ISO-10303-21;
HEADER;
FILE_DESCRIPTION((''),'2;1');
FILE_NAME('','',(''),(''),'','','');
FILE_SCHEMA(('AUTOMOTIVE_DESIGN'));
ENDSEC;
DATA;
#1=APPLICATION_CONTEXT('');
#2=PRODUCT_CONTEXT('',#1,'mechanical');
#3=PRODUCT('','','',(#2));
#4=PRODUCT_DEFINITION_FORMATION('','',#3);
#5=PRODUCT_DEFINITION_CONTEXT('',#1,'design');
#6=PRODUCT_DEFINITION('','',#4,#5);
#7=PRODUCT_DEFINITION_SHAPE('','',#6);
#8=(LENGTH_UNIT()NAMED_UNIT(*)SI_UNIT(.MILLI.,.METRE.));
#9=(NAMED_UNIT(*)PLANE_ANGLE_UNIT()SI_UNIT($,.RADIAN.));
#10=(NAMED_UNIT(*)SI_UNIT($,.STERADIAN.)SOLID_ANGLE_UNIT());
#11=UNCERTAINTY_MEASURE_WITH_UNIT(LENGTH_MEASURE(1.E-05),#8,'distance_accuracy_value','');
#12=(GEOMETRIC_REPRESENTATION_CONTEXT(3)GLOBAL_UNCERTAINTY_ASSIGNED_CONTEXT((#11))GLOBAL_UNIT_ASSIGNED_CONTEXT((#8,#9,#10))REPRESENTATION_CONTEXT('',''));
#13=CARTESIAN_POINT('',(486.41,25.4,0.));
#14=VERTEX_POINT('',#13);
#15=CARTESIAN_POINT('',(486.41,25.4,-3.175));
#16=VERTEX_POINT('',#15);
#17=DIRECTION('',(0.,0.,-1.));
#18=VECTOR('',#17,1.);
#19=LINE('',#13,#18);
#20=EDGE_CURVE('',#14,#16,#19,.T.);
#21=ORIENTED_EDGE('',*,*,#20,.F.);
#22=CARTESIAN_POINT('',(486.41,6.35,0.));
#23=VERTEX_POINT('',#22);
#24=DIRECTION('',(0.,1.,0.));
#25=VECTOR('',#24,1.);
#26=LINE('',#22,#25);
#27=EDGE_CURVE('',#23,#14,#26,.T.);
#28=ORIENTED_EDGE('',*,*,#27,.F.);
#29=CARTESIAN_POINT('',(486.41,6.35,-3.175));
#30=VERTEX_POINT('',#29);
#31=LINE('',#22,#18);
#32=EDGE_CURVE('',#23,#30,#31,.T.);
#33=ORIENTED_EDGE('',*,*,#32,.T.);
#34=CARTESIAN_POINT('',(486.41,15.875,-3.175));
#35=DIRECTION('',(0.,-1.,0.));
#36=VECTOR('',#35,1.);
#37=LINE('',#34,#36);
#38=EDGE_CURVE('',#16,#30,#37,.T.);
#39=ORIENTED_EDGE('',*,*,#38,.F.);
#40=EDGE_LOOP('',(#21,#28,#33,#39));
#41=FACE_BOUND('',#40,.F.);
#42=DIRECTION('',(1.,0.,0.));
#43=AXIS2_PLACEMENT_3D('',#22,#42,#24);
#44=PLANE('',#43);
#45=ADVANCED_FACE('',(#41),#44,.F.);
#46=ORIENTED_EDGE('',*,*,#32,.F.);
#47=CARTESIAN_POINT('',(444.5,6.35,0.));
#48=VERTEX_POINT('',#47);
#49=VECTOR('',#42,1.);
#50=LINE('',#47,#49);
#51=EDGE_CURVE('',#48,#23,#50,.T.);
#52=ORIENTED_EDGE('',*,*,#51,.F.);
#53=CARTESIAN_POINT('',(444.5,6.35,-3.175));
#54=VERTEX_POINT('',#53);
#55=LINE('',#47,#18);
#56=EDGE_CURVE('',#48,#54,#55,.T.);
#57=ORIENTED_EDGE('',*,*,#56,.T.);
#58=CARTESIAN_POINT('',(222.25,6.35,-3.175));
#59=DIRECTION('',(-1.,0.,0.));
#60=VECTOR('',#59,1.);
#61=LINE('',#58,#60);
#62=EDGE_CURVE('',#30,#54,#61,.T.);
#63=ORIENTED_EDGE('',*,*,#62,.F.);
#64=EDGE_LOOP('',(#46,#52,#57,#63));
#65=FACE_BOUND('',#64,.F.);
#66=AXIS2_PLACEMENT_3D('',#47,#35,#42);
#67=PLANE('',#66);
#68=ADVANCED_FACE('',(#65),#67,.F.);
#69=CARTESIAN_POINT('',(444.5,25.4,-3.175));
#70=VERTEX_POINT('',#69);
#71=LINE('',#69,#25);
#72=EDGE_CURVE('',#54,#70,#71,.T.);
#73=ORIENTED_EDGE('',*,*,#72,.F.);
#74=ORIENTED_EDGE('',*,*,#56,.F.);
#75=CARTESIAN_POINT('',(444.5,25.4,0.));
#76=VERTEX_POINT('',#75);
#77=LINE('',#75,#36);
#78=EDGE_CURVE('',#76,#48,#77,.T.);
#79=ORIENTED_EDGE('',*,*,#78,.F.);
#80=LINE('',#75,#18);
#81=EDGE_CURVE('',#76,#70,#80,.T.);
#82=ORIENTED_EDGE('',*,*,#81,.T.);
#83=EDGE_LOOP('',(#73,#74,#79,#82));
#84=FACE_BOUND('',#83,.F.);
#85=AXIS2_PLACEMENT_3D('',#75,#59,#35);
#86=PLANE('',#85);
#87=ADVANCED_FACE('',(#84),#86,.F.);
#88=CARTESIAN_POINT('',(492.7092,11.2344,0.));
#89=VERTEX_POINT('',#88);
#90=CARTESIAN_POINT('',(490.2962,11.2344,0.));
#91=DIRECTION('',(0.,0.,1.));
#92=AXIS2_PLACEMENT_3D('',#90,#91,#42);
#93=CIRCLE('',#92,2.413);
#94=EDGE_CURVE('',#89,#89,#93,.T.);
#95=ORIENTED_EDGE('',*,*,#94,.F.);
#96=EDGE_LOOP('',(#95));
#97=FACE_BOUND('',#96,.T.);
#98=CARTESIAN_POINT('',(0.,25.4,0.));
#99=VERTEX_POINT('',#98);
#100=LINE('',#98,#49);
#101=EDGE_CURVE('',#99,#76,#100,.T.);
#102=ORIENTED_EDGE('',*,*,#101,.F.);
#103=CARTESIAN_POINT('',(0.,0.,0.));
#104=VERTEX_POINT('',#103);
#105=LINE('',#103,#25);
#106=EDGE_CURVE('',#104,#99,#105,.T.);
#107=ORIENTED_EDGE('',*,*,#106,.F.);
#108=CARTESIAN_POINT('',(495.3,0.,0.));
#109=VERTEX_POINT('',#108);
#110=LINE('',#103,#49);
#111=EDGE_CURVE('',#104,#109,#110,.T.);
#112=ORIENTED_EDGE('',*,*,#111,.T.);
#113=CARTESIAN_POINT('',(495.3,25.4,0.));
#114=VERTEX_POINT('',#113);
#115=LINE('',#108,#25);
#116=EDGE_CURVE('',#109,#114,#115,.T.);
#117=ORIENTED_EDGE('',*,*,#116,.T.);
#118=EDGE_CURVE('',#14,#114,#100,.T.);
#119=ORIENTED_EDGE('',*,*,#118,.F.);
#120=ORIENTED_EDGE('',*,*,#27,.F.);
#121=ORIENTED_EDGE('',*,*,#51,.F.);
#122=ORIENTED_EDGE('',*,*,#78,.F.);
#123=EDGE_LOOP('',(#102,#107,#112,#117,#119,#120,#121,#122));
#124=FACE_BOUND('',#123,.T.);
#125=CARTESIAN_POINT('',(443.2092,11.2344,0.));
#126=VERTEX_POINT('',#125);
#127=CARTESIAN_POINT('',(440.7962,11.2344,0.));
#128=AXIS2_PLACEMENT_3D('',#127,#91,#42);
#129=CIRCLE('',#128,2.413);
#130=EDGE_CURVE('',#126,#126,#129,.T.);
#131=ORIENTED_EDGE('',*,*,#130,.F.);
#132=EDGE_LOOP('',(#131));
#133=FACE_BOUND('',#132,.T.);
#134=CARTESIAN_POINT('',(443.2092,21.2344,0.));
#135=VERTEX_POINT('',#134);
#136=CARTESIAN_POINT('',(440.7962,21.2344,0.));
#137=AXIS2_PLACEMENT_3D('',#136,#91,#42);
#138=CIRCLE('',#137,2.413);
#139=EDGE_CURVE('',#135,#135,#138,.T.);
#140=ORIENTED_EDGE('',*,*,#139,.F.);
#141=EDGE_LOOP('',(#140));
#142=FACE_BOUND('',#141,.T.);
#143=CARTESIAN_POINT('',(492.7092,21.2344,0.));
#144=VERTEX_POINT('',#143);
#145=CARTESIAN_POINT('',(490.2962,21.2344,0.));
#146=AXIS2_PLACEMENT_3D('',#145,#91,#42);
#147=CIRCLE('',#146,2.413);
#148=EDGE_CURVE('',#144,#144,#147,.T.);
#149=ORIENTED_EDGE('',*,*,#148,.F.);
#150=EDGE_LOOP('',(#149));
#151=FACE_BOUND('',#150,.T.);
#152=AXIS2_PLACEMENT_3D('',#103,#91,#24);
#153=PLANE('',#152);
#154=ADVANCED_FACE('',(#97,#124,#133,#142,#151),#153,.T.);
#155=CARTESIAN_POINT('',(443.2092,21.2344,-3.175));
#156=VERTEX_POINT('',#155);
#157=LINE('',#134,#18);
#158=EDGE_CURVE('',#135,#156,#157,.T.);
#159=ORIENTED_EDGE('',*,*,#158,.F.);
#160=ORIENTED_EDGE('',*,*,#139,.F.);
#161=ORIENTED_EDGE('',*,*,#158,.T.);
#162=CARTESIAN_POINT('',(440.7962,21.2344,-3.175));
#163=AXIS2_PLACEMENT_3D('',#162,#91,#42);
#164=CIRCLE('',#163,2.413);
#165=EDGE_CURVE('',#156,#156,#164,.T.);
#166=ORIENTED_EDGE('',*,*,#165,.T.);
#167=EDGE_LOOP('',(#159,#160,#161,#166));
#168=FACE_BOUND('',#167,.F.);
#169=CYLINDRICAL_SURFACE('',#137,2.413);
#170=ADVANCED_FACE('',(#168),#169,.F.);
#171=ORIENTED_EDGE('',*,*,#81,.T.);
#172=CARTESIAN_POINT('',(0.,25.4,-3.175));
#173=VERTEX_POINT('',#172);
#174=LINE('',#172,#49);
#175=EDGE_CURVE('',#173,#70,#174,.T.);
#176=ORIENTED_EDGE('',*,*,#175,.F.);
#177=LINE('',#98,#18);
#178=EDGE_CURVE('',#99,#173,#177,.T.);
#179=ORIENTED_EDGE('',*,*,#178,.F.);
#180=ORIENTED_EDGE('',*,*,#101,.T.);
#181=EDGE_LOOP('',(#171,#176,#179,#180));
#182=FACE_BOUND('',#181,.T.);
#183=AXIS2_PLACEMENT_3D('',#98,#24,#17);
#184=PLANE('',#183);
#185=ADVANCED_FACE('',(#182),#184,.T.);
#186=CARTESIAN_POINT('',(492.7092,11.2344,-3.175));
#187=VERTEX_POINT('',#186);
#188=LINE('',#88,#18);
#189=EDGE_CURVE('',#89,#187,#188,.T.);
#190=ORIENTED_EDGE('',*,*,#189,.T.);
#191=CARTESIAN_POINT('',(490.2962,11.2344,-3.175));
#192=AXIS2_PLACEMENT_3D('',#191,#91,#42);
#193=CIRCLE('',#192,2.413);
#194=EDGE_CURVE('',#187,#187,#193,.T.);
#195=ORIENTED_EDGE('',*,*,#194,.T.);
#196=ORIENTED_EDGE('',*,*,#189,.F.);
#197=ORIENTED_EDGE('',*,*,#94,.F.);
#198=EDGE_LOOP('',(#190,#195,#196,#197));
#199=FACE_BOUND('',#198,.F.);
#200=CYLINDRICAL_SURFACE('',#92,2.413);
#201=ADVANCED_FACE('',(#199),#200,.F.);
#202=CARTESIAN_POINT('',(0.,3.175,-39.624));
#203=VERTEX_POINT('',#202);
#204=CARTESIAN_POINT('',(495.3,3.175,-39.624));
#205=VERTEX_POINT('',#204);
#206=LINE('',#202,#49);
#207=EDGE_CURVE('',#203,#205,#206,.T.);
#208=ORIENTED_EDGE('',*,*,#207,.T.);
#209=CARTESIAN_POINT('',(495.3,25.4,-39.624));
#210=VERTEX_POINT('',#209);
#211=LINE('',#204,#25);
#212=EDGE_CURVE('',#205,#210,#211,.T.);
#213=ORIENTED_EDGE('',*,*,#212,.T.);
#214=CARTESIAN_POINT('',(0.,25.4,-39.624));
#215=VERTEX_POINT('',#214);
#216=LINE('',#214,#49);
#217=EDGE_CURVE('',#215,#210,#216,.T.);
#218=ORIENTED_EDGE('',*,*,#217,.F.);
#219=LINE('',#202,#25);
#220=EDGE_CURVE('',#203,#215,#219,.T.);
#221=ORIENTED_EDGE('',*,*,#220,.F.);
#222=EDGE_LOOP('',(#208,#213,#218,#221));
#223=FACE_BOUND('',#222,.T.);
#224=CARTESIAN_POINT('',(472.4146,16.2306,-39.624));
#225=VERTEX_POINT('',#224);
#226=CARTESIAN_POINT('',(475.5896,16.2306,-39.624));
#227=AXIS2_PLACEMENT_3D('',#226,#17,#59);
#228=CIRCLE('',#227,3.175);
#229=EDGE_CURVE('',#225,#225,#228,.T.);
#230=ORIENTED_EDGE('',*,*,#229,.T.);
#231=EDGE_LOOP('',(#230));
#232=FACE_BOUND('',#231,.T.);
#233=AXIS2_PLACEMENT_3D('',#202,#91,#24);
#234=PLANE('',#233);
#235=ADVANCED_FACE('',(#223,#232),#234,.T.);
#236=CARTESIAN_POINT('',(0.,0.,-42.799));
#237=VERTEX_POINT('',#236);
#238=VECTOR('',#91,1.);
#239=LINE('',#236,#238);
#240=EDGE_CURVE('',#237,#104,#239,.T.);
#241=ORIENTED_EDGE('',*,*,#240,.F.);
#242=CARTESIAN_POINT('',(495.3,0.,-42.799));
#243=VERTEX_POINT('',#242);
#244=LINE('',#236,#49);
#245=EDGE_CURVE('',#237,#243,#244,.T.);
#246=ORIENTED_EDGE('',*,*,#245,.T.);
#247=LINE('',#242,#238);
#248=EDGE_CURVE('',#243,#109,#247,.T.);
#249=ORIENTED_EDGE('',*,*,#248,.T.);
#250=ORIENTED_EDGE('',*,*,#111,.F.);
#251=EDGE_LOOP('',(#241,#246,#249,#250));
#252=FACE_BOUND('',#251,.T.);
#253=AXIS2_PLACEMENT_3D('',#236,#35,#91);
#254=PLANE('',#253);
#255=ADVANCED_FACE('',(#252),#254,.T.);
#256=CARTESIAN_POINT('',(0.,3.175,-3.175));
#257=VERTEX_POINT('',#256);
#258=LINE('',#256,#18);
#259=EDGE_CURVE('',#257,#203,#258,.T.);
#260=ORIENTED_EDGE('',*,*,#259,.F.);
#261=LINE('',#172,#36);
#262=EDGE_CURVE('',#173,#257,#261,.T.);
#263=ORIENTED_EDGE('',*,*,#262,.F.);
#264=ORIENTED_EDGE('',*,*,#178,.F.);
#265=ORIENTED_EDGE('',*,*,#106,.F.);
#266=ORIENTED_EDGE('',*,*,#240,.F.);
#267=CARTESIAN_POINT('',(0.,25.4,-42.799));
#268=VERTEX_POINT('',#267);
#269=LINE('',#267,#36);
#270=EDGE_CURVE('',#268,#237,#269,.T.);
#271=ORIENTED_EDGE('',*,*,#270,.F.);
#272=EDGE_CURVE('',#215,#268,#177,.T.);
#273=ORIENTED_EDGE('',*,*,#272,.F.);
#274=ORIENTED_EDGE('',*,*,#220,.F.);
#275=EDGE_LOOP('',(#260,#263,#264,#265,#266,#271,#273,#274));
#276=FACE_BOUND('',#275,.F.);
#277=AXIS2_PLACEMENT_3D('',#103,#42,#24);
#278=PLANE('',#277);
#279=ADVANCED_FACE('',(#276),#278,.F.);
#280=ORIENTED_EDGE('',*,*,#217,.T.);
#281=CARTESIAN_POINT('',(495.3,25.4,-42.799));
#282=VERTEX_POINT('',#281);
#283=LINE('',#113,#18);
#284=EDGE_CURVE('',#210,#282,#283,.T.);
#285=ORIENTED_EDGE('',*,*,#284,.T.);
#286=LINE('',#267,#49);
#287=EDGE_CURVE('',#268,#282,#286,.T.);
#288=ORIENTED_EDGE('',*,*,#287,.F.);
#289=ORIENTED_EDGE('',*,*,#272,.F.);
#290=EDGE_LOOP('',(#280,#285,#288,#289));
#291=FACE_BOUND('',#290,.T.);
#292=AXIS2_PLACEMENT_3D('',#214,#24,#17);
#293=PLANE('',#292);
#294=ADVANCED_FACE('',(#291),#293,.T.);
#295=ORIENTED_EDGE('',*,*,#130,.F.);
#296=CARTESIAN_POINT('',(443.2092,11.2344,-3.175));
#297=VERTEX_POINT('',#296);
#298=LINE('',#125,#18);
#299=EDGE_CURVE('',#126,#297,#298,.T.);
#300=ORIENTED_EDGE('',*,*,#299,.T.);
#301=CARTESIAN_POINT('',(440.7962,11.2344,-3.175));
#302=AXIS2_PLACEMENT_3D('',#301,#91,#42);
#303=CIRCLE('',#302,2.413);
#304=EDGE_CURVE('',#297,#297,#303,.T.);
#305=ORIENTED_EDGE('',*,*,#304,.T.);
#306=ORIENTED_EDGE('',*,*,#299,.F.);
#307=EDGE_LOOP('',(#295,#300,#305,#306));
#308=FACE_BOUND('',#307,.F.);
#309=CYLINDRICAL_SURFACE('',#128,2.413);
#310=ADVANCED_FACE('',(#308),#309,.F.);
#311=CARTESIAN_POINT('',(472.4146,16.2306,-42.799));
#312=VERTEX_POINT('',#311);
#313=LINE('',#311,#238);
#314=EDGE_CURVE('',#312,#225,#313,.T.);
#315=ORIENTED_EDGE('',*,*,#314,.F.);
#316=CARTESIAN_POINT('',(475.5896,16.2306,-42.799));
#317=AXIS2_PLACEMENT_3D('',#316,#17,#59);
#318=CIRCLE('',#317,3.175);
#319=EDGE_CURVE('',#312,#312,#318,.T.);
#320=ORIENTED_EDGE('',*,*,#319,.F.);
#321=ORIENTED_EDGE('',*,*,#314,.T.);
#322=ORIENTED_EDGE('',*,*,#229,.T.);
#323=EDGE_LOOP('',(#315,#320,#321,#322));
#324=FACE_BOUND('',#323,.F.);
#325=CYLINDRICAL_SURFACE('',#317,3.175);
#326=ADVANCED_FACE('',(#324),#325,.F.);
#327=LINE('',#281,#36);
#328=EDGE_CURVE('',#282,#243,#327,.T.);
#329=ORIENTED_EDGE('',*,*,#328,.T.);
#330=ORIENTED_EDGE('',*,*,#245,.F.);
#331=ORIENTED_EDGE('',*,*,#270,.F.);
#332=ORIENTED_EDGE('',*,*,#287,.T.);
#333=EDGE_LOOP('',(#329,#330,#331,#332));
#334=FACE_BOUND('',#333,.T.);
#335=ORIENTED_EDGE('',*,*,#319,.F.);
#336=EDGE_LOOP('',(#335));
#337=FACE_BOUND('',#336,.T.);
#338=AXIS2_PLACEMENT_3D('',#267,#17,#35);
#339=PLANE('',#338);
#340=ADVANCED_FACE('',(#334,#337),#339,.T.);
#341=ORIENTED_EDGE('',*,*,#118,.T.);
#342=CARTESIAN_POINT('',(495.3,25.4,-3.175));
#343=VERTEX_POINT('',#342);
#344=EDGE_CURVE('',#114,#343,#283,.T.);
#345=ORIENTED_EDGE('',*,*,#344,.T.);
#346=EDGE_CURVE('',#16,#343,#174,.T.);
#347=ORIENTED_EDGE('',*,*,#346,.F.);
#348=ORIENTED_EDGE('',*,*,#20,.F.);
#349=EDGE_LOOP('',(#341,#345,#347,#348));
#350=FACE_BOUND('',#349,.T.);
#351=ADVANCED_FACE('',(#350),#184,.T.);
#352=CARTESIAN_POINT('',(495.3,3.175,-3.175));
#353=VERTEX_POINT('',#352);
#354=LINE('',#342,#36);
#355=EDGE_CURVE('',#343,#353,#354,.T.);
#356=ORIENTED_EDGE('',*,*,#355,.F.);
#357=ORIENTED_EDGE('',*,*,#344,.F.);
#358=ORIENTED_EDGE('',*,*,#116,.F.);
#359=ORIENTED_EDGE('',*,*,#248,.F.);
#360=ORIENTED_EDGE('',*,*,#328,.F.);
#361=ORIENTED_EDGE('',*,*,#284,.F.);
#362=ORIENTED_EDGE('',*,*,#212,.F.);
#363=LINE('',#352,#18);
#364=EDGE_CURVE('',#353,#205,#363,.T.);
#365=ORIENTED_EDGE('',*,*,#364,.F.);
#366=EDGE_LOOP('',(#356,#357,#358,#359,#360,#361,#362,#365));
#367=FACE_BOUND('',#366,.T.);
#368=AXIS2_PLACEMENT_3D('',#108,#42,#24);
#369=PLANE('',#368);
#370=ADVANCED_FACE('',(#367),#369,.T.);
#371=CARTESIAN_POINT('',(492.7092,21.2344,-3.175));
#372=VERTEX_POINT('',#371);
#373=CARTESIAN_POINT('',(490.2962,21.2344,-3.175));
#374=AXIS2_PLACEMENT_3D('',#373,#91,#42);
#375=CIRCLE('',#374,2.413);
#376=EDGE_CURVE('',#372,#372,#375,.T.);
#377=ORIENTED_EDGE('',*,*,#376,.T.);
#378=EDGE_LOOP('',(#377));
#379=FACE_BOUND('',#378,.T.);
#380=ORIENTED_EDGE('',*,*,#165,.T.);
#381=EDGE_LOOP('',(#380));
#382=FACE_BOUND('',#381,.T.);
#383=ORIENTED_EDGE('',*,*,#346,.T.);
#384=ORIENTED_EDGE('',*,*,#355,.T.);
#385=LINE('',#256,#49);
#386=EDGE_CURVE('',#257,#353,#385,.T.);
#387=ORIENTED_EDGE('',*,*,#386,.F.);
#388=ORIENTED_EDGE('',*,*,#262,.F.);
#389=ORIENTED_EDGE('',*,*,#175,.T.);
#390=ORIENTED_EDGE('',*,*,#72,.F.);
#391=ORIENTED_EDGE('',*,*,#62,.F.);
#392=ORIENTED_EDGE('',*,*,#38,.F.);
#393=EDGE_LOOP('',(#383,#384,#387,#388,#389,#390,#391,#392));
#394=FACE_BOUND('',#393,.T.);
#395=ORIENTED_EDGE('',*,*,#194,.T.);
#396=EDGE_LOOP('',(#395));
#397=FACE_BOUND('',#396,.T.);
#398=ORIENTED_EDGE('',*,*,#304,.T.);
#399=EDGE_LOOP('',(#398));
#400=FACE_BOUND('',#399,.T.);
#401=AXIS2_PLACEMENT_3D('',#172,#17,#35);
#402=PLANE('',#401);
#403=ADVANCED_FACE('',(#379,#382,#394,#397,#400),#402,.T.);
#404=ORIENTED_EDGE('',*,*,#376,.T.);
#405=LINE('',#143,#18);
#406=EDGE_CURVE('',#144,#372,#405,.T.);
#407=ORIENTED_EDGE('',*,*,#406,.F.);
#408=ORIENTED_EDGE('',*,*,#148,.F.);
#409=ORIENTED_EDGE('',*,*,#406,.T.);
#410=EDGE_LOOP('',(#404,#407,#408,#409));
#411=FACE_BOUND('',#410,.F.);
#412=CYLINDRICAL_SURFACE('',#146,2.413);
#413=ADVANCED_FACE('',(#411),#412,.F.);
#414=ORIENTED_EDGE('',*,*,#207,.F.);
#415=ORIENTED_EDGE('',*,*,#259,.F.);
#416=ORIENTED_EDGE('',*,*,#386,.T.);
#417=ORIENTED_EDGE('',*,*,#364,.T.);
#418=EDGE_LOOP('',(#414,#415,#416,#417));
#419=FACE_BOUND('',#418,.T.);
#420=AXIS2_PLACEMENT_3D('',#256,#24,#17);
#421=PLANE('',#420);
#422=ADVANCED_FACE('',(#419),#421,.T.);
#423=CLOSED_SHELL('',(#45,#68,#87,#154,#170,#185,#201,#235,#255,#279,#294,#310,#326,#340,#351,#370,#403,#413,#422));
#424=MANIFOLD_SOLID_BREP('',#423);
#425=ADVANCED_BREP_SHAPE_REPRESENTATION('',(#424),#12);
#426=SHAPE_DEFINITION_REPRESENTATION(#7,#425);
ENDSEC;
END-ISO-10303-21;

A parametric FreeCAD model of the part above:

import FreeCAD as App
import Part
import Sketcher

V = App.Vector
Q = App.Units.Quantity


def add_polygon(sketch, points):
    """Adds a closed chain of lines whose ends are joined by coincident constraints."""
    first, n = sketch.GeometryCount, len(points)
    for a, b in zip(points, points[1:] + points[:1]):
        sketch.addGeometry(Part.LineSegment(App.Vector(*a, 0), App.Vector(*b, 0)), False)
    for i in range(n):
        sketch.addConstraint(Sketcher.Constraint("Coincident", first + i, 2, first + (i + 1) % n, 1))

doc = App.newDocument("Part")
params = doc.addObject("Spreadsheet::Sheet", "Params")
for row, (alias, value) in enumerate([
    ("sketch1_width", "1 in"),
    ("sketch1_width2", "0.875 in"),
    ("sketch1_height", "1.685 in"),
    ("sketch1_height2", "0.125 in"),
    ("pad1_length", "19.5 in"),
    ("sketch2_diameter", "0.19 in"),
    ("sketch2_height", "0.75 in"),
    ("sketch2_width", "1.65 in"),
    ("pocket1_length", "0.5 in"),
    ("sketch3_diameter", "0.25 in"),
    ("pocket2_length", "0.5 in"),
], start=1):
    params.set(f"A{row}", alias)
    params.set(f"B{row}", "=" + value)
    params.setAlias(f"B{row}", alias)

body = doc.addObject("PartDesign::Body", "Body")

sketch1 = doc.addObject("Sketcher::SketchObject", "Sketch")
body.addObject(sketch1)
sketch1.AttachmentSupport = (doc.YZ_Plane, [""])
sketch1.MapMode = "FlatFace"
add_polygon(sketch1, [(25.4, 0), (0, 0), (0, -42.8), (25.4, -42.8), (25.4, -39.6), (3.2, -39.6), (3.2, -3.2), (25.4, -3.2)])
sketch1.addConstraint([
    Sketcher.Constraint("Horizontal", 0),
    Sketcher.Constraint("Vertical", 1),
    Sketcher.Constraint("Horizontal", 2),
    Sketcher.Constraint("Vertical", 3),
    Sketcher.Constraint("Horizontal", 4),
    Sketcher.Constraint("Vertical", 5),
    Sketcher.Constraint("Horizontal", 6),
    Sketcher.Constraint("Vertical", 7),
    Sketcher.Constraint("Coincident", 0, 2, -1, 1),
    Sketcher.Constraint("Vertical", 3, 2, 6, 2),
    Sketcher.Constraint("Equal", 3, 7),
    Sketcher.Constraint("DistanceX", 0, 2, 0, 1, Q("1 in")),
    Sketcher.Constraint("DistanceX", 4, 2, 4, 1, Q("0.875 in")),
    Sketcher.Constraint("DistanceY", 1, 2, 1, 1, Q("1.685 in")),
    Sketcher.Constraint("DistanceY", 3, 1, 3, 2, Q("0.125 in")),
])
sketch1.setExpression("Constraints[19]", "Params.sketch1_width")
sketch1.setExpression("Constraints[20]", "Params.sketch1_width2")
sketch1.setExpression("Constraints[21]", "Params.sketch1_height")
sketch1.setExpression("Constraints[22]", "Params.sketch1_height2")
pad1 = doc.addObject("PartDesign::Pad", "Pad")
body.addObject(pad1)
pad1.Profile = sketch1
pad1.setExpression("Length", "Params.pad1_length")

sketch2 = doc.addObject("Sketcher::SketchObject", "Sketch001")
body.addObject(sketch2)
sketch2.AttachmentSupport = (doc.XY_Plane, [""])
sketch2.MapMode = "FlatFace"
add_polygon(sketch2, [(486.4, 25.4), (444.5, 25.4), (444.5, 6.3), (486.4, 6.3)])
sketch2.addGeometry(Part.Circle(V(490.3, 21.2, 0), V(0, 0, 1), 2.4), False)
sketch2.addGeometry(Part.Circle(V(490.3, 11.2, 0), V(0, 0, 1), 2.4), False)
sketch2.addGeometry(Part.Circle(V(440.8, 21.2, 0), V(0, 0, 1), 2.4), False)
sketch2.addGeometry(Part.Circle(V(440.8, 11.2, 0), V(0, 0, 1), 2.4), False)
sketch2.addConstraint([
    Sketcher.Constraint("Horizontal", 0),
    Sketcher.Constraint("Vertical", 1),
    Sketcher.Constraint("Horizontal", 2),
    Sketcher.Constraint("Vertical", 3),
    Sketcher.Constraint("Equal", 4, 5),
    Sketcher.Constraint("Equal", 5, 6),
    Sketcher.Constraint("Equal", 6, 7),
    Sketcher.Constraint("Horizontal", 4, 3, 6, 3),
    Sketcher.Constraint("Horizontal", 5, 3, 7, 3),
    Sketcher.Constraint("Vertical", 4, 3, 5, 3),
    Sketcher.Constraint("Vertical", 6, 3, 7, 3),
    Sketcher.Constraint("Diameter", 4, Q("0.19 in")),
    Sketcher.Constraint("DistanceY", -1, 1, 0, 2, Q("1 in")),
    Sketcher.Constraint("DistanceY", 1, 2, 1, 1, Q("0.75 in")),
    Sketcher.Constraint("DistanceY", 6, 3, 0, 2, Q("0.164 in")),
    Sketcher.Constraint("DistanceX", 0, 2, 0, 1, Q("1.65 in")),
    Sketcher.Constraint("DistanceX", -1, 1, 0, 2, Q("17.5 in")),
    Sketcher.Constraint("DistanceY", 5, 3, 4, 3, Q("0.3937 in")),
    Sketcher.Constraint("DistanceX", 6, 3, 4, 3, Q("49.5 mm")),
    Sketcher.Constraint("DistanceX", -1, 1, 4, 3, Q("19.303 in")),
])
sketch2.setExpression("Constraints[15]", "Params.sketch2_diameter")
sketch2.setExpression("Constraints[17]", "Params.sketch2_height")
sketch2.setExpression("Constraints[19]", "Params.sketch2_width")
pocket1 = doc.addObject("PartDesign::Pocket", "Pocket")
body.addObject(pocket1)
pocket1.Profile = sketch2
pocket1.setExpression("Length", "Params.pocket1_length")

sketch3 = doc.addObject("Sketcher::SketchObject", "Sketch002")
body.addObject(sketch3)
sketch3.AttachmentSupport = (doc.XY_Plane, [""])
sketch3.MapMode = "FlatFace"
sketch3.AttachmentOffset = App.Placement(V(0, 0, -1.685 * 25.4), App.Rotation())
sketch3.addGeometry(Part.Circle(V(475.6, 16.2, 0), V(0, 0, 1), 3.2), False)
sketch3.addConstraint([
    Sketcher.Constraint("Diameter", 0, Q("0.25 in")),
    Sketcher.Constraint("DistanceX", -1, 1, 0, 3, Q("18.724 in")),
    Sketcher.Constraint("DistanceY", -1, 1, 0, 3, Q("0.639 in")),
])
sketch3.setExpression("Constraints[0]", "Params.sketch3_diameter")
pocket2 = doc.addObject("PartDesign::Pocket", "Pocket001")
body.addObject(pocket2)
pocket2.Profile = sketch3
pocket2.setExpression("Length", "Params.pocket2_length")
pocket2.Reversed = True

doc.recompute()
